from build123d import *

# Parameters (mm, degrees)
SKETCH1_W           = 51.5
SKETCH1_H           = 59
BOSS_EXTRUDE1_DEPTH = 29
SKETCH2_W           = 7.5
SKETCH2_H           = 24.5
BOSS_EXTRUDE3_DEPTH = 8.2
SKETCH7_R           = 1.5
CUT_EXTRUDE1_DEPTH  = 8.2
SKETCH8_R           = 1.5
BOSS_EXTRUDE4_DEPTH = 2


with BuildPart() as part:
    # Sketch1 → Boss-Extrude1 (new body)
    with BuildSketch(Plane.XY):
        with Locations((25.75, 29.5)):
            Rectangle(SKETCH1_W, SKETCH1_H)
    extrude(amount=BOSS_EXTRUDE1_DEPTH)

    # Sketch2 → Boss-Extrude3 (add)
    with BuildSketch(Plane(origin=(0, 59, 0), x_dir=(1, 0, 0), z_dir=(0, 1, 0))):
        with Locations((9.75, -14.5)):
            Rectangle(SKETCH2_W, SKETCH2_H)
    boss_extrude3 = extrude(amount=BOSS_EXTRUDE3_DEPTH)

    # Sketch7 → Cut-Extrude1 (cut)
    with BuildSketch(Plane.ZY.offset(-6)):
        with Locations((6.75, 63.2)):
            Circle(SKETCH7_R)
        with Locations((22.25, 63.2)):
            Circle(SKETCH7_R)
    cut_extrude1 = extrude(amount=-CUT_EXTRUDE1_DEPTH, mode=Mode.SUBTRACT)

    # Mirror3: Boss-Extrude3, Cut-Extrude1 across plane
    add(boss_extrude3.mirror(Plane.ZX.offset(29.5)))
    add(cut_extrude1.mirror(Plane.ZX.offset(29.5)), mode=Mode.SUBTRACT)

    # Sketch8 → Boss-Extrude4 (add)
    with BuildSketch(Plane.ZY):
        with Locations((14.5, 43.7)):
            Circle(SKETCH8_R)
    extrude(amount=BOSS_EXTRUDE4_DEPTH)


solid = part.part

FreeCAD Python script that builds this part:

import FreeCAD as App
import Part
import Sketcher

V = App.Vector

doc = App.newDocument("Part")
body = doc.addObject("PartDesign::Body", "Body")

# Sketch on XY plane
sketch1 = doc.addObject("Sketcher::SketchObject", "Sketch")
body.addObject(sketch1)
sketch1.AttachmentSupport = (doc.XY_Plane, [""])
sketch1.MapMode = "FlatFace"
sketch1.addGeometry([
    Part.LineSegment(V(0, 59, 0), V(0, 0, 0)),
    Part.LineSegment(V(0, 0, 0), V(52, 0, 0)),
    Part.LineSegment(V(52, 0, 0), V(52, 59, 0)),
    Part.LineSegment(V(52, 59, 0), V(0, 59, 0)),
], False)
sketch1.addConstraint([
    Sketcher.Constraint("Coincident", 0, 2, 1, 1),
    Sketcher.Constraint("Coincident", 1, 2, 2, 1),
    Sketcher.Constraint("Coincident", 2, 2, 3, 1),
    Sketcher.Constraint("Coincident", 3, 2, 0, 1),
    Sketcher.Constraint("Vertical", 0),
    Sketcher.Constraint("Horizontal", 1),
    Sketcher.Constraint("Vertical", 2),
    Sketcher.Constraint("Horizontal", 3),
    Sketcher.Constraint("Coincident", 0, 2, -1, 1),
    Sketcher.Constraint("DistanceY", 0, 2, 0, 1, 59.0),
    Sketcher.Constraint("DistanceX", 1, 1, 1, 2, 51.5),
])
pad1 = doc.addObject("PartDesign::Pad", "Pad")
body.addObject(pad1)
pad1.Profile = sketch1
pad1.Length = 29

# Sketch on XZ plane
sketch2 = doc.addObject("Sketcher::SketchObject", "Sketch001")
body.addObject(sketch2)
sketch2.AttachmentSupport = (doc.XZ_Plane, [""])
sketch2.MapMode = "FlatFace"
sketch2.AttachmentOffset = App.Placement(V(0, 0, -59), App.Rotation())
sketch2.addGeometry([
    Part.LineSegment(V(6, 2, 0), V(6, 27, 0)),
    Part.LineSegment(V(6, 27, 0), V(14, 27, 0)),
    Part.LineSegment(V(14, 27, 0), V(14, 2, 0)),
    Part.LineSegment(V(14, 2, 0), V(6, 2, 0)),
], False)
sketch2.addConstraint([
    Sketcher.Constraint("Coincident", 0, 2, 1, 1),
    Sketcher.Constraint("Coincident", 1, 2, 2, 1),
    Sketcher.Constraint("Coincident", 2, 2, 3, 1),
    Sketcher.Constraint("Coincident", 3, 2, 0, 1),
    Sketcher.Constraint("Vertical", 0),
    Sketcher.Constraint("Horizontal", 1),
    Sketcher.Constraint("Vertical", 2),
    Sketcher.Constraint("Horizontal", 3),
    Sketcher.Constraint("DistanceX", 1, 1, 1, 2, 7.5),
    Sketcher.Constraint("DistanceY", 0, 1, 0, 2, 24.5),
    Sketcher.Constraint("DistanceX", -1, 1, 0, 2, 6.0),
    Sketcher.Constraint("DistanceY", -1, 1, 0, 2, 26.75),
])
pad2 = doc.addObject("PartDesign::Pad", "Pad001")
body.addObject(pad2)
pad2.Profile = sketch2
pad2.Length = 8.2
pad2.Reversed = True

# Sketch on YZ plane
sketch3 = doc.addObject("Sketcher::SketchObject", "Sketch002")
body.addObject(sketch3)
sketch3.AttachmentSupport = (doc.YZ_Plane, [""])
sketch3.MapMode = "FlatFace"
sketch3.AttachmentOffset = App.Placement(V(0, 0, 6), App.Rotation())
sketch3.addGeometry([
    Part.Circle(V(63.2, 6.8, 0), V(0, 0, 1), 1.5),
    Part.Circle(V(63.2, 22.2, 0), V(0, 0, 1), 1.5),
], False)
sketch3.addConstraint([
    Sketcher.Constraint("Equal", 0, 1),
    Sketcher.Constraint("Vertical", 0, 3, 1, 3),
    Sketcher.Constraint("Diameter", 0, 3.0),
    Sketcher.Constraint("DistanceX", -1, 1, 0, 3, 63.2),
    Sketcher.Constraint("DistanceY", 0, 3, 1, 3, 15.5),
    Sketcher.Constraint("DistanceY", -1, 1, 0, 3, 6.75),
])
pocket1 = doc.addObject("PartDesign::Pocket", "Pocket")
body.addObject(pocket1)
pocket1.Profile = sketch3
pocket1.Length = 8.2
pocket1.Reversed = True
doc.recompute()

datumplane = doc.addObject("PartDesign::Plane", "DatumPlane")
body.addObject(datumplane)
datumplane.AttachmentSupport = (doc.XZ_Plane, [""])
datumplane.MapMode = "FlatFace"
datumplane.AttachmentOffset = App.Placement(V(0, 0, -29.5), App.Rotation())
mirrored = doc.addObject("PartDesign::Mirrored", "Mirrored")
body.addObject(mirrored)
mirrored.Originals = [pad2, pocket1]
mirrored.MirrorPlane = (datumplane, [""])
body.Tip = mirrored

# Sketch on YZ plane
sketch4 = doc.addObject("Sketcher::SketchObject", "Sketch003")
body.addObject(sketch4)
sketch4.AttachmentSupport = (doc.YZ_Plane, [""])
sketch4.MapMode = "FlatFace"
sketch4.addGeometry(Part.Circle(V(43.7, 14.5, 0), V(0, 0, 1), 1.5), False)
sketch4.addConstraint([
    Sketcher.Constraint("Diameter", 0, 3.0),
    Sketcher.Constraint("DistanceX", -1, 1, 0, 3, 43.7),
    Sketcher.Constraint("DistanceY", -1, 1, 0, 3, 14.5),
])
pad3 = doc.addObject("PartDesign::Pad", "Pad002")
body.addObject(pad3)
pad3.Profile = sketch4
pad3.Length = 2
pad3.Reversed = True

doc.recompute()
